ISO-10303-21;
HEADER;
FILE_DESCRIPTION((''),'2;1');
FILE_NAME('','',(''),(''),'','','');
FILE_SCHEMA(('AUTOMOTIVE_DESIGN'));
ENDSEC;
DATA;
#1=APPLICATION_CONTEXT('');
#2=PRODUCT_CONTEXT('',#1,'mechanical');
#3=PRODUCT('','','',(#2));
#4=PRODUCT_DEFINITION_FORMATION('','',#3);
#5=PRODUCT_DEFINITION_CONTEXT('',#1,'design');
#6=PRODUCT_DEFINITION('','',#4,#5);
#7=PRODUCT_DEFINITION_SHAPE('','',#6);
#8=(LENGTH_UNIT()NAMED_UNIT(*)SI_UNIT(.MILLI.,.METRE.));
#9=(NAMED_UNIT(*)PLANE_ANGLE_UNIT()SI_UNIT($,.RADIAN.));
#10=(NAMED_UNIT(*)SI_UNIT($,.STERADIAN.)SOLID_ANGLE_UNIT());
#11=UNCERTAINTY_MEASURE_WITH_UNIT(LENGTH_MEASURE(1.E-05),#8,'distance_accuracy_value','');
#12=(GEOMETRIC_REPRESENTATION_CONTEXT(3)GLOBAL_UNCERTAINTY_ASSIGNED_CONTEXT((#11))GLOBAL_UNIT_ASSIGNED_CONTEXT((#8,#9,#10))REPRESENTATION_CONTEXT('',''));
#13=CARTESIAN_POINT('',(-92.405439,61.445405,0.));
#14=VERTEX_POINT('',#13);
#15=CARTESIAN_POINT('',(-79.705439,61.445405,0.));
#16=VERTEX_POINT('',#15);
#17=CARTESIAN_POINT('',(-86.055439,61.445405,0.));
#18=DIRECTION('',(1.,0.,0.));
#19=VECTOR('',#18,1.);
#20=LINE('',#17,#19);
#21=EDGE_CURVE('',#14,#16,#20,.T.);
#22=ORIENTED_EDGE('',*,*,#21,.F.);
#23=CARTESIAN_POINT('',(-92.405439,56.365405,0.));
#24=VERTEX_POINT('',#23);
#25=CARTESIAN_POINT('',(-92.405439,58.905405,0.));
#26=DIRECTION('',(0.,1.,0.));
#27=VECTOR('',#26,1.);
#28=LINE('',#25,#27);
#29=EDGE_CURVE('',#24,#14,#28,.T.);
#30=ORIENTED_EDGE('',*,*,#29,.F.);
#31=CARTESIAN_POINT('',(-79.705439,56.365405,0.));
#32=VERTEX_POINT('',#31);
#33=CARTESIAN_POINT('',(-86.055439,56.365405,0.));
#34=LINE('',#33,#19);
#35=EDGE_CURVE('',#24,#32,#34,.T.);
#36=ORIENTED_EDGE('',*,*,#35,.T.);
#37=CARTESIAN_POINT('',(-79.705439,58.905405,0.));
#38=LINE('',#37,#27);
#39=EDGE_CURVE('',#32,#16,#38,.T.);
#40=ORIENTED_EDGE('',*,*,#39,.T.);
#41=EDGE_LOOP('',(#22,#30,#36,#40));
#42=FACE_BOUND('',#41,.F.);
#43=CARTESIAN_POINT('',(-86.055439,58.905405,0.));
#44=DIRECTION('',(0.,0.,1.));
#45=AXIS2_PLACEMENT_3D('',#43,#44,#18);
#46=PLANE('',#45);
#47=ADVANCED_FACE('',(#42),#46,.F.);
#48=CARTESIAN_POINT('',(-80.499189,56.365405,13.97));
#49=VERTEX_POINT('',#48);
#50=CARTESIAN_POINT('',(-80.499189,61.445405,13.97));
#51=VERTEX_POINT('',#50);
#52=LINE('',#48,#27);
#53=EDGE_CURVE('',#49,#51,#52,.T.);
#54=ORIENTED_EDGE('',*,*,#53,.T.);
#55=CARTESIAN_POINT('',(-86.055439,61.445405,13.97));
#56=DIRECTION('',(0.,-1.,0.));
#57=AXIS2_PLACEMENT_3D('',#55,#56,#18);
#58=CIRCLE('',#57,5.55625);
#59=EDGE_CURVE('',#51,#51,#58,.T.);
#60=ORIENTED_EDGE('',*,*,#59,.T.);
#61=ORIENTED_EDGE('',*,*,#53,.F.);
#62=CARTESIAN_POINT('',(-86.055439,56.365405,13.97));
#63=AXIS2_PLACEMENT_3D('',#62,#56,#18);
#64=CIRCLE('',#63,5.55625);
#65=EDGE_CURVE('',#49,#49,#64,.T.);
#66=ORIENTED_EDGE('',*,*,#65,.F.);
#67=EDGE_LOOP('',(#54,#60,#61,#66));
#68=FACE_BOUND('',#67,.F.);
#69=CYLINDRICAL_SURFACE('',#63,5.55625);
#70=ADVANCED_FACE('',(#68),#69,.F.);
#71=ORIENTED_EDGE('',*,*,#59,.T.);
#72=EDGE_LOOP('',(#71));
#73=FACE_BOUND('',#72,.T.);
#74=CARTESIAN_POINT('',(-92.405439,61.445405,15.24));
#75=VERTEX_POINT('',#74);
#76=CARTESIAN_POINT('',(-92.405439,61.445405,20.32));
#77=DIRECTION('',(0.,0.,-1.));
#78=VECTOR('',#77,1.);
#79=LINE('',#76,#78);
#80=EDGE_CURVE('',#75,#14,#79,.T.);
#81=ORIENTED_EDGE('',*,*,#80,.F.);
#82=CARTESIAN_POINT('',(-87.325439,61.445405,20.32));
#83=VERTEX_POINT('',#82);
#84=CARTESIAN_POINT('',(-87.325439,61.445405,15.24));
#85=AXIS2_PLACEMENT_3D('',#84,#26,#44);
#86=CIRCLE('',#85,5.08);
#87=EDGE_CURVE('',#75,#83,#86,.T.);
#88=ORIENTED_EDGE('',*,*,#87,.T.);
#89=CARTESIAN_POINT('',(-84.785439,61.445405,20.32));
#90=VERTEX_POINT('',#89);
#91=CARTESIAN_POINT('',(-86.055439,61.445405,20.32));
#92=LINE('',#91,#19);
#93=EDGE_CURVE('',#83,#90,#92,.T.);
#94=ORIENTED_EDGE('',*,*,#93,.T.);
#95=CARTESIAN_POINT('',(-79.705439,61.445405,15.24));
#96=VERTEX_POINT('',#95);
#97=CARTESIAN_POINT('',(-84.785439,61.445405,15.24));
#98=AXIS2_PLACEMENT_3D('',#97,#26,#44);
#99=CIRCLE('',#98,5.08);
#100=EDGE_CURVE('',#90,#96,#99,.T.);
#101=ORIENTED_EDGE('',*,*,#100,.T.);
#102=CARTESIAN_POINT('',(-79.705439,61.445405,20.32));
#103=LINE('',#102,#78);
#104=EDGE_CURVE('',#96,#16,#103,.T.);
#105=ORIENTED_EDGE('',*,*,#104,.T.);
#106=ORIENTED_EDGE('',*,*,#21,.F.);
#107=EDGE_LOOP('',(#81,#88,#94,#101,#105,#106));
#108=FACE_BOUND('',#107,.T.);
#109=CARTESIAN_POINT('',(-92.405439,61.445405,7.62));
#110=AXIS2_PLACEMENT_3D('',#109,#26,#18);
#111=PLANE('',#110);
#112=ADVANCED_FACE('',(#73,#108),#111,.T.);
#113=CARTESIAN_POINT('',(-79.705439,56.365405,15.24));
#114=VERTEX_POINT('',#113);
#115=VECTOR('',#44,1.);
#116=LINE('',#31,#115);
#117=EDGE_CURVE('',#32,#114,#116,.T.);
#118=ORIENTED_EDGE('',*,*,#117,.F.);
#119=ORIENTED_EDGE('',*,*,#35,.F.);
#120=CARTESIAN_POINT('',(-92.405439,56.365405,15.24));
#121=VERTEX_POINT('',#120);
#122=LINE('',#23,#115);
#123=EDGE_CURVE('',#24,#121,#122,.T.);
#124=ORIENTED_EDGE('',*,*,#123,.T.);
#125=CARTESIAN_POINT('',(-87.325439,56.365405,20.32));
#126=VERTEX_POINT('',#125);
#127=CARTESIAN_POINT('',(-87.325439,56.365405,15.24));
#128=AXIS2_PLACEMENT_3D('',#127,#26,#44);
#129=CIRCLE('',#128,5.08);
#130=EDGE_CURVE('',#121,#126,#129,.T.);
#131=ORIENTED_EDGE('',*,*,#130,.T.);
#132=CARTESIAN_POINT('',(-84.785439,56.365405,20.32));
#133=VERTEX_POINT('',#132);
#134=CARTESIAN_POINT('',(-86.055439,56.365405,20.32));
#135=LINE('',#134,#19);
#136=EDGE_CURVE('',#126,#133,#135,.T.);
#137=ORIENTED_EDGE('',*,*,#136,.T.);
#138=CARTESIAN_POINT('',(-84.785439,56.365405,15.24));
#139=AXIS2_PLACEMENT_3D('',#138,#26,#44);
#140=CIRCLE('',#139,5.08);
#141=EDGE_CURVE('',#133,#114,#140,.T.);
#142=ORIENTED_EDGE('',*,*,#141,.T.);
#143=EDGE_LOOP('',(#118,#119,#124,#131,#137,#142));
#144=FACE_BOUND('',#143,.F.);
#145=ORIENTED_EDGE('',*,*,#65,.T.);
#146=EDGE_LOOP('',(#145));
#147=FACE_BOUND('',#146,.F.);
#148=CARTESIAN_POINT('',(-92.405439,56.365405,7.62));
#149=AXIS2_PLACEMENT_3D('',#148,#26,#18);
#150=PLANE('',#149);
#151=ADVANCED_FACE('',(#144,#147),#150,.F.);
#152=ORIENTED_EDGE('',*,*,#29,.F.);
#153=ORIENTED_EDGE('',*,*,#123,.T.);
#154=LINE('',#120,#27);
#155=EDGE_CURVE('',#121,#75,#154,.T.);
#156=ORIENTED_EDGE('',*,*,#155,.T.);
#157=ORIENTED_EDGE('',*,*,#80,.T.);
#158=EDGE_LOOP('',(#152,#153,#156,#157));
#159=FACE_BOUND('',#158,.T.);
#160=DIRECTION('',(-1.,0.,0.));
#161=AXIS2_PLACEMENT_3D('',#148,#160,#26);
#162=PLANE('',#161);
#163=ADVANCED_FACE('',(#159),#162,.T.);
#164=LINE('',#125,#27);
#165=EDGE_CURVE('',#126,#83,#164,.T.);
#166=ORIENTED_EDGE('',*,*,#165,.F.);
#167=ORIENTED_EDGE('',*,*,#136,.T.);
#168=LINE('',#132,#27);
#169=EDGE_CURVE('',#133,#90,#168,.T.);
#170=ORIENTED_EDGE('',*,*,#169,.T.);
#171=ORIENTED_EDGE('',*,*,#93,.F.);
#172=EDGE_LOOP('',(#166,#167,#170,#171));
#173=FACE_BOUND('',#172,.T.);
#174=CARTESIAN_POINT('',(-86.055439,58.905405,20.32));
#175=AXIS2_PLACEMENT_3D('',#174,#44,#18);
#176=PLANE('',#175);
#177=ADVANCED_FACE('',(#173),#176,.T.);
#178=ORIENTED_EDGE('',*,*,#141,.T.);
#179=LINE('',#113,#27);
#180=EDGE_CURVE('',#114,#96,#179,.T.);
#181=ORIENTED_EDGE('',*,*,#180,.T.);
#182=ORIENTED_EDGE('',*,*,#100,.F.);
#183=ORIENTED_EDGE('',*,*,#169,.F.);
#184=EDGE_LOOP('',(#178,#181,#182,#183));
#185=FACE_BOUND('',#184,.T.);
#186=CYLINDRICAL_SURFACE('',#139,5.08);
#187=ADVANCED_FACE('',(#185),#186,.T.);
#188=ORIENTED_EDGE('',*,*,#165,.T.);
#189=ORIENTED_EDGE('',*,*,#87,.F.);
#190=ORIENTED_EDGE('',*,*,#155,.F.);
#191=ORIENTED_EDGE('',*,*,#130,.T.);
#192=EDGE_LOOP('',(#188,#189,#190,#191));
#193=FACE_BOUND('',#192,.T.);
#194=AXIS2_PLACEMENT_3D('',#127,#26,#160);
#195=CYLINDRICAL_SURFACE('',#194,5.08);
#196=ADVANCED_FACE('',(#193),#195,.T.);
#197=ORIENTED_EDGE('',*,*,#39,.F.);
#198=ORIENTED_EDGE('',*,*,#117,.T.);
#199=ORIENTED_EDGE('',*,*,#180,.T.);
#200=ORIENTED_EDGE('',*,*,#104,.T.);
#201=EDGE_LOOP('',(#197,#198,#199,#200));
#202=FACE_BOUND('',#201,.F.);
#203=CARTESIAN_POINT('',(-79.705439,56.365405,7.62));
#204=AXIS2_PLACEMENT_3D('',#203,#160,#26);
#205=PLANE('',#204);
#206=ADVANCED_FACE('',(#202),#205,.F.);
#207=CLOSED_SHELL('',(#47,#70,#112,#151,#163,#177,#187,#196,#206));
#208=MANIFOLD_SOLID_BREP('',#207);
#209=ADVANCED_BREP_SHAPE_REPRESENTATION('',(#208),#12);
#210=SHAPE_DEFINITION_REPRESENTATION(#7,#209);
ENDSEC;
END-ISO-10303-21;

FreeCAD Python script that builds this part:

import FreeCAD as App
import Part
import Sketcher

V = App.Vector
Q = App.Units.Quantity


def edges_at(feature, points):
    """Names of the edges that pass closest to the given points."""
    edges = feature.Shape.Edges
    near = lambda p: min(range(len(edges)), key=lambda i: edges[i].distToShape(Part.Vertex(*p))[0])
    return sorted({f"Edge{near(p) + 1}" for p in points})

doc = App.newDocument("Part")
params = doc.addObject("Spreadsheet::Sheet", "Params")
for row, (alias, value) in enumerate([
    ("sketch1_width", "0.5 in"),
    ("sketch1_height", "0.2 in"),
    ("pad1_length", "0.3 in"),
    ("sketch2_width", "0.5 in"),
    ("sketch2_height", "0.2 in"),
    ("pad2_length", "0.5 in"),
    ("sketch3_diameter", "0.4375 in"),
    ("pocket1_length", "1 in"),
    ("fillet_radius", "0.2 in"),
], start=1):
    params.set(f"A{row}", alias)
    params.set(f"B{row}", "=" + value)
    params.setAlias(f"B{row}", alias)

body = doc.addObject("PartDesign::Body", "Body")

# Sketch on XY plane
sketch1 = body.newObject("Sketcher::SketchObject", "Sketch")
sketch1.AttachmentSupport = (doc.getObject("XY_Plane"), [""])
sketch1.MapMode = "FlatFace"
sketch1.addGeometry([
    Part.LineSegment(V(-92, 61, 0), V(-92, 56, 0)),
    Part.LineSegment(V(-92, 56, 0), V(-80, 56, 0)),
    Part.LineSegment(V(-80, 56, 0), V(-80, 61, 0)),
    Part.LineSegment(V(-80, 61, 0), V(-92, 61, 0)),
], False)
sketch1.addConstraint([
    Sketcher.Constraint("Coincident", 0, 2, 1, 1),
    Sketcher.Constraint("Coincident", 1, 2, 2, 1),
    Sketcher.Constraint("Coincident", 2, 2, 3, 1),
    Sketcher.Constraint("Coincident", 3, 2, 0, 1),
    Sketcher.Constraint("Vertical", 0),
    Sketcher.Constraint("Horizontal", 1),
    Sketcher.Constraint("Vertical", 2),
    Sketcher.Constraint("Horizontal", 3),
    Sketcher.Constraint("DistanceX", 1, 1, 1, 2, Q("0.5 in")),
    Sketcher.Constraint("DistanceY", 0, 2, 0, 1, Q("0.2 in")),
    Sketcher.Constraint("DistanceX", 0, 2, -1, 1, Q("92.405439 mm")),
    Sketcher.Constraint("DistanceY", -1, 1, 0, 2, Q("56.365405 mm")),
])
sketch1.setExpression("Constraints[8]", "Params.sketch1_width")
sketch1.setExpression("Constraints[9]", "Params.sketch1_height")
pad1 = body.newObject("PartDesign::Pad", "Pad")
pad1.Profile = sketch1
pad1.setExpression("Length", "Params.pad1_length")

# Sketch on XY plane
sketch2 = body.newObject("Sketcher::SketchObject", "Sketch001")
sketch2.AttachmentSupport = (doc.getObject("XY_Plane"), [""])
sketch2.MapMode = "FlatFace"
sketch2.AttachmentOffset = App.Placement(V(0, 0, 0.3 * 25.4), App.Rotation())
sketch2.addGeometry([
    Part.LineSegment(V(-92, 61, 0), V(-92, 56, 0)),
    Part.LineSegment(V(-92, 56, 0), V(-80, 56, 0)),
    Part.LineSegment(V(-80, 56, 0), V(-80, 61, 0)),
    Part.LineSegment(V(-80, 61, 0), V(-92, 61, 0)),
], False)
sketch2.addConstraint([
    Sketcher.Constraint("Coincident", 0, 2, 1, 1),
    Sketcher.Constraint("Coincident", 1, 2, 2, 1),
    Sketcher.Constraint("Coincident", 2, 2, 3, 1),
    Sketcher.Constraint("Coincident", 3, 2, 0, 1),
    Sketcher.Constraint("Vertical", 0),
    Sketcher.Constraint("Horizontal", 1),
    Sketcher.Constraint("Vertical", 2),
    Sketcher.Constraint("Horizontal", 3),
    Sketcher.Constraint("DistanceX", 1, 1, 1, 2, Q("0.5 in")),
    Sketcher.Constraint("DistanceY", 0, 2, 0, 1, Q("0.2 in")),
    Sketcher.Constraint("DistanceX", 0, 2, -1, 1, Q("92.405439 mm")),
    Sketcher.Constraint("DistanceY", -1, 1, 0, 2, Q("56.365405 mm")),
])
sketch2.setExpression("Constraints[8]", "Params.sketch2_width")
sketch2.setExpression("Constraints[9]", "Params.sketch2_height")
pad2 = body.newObject("PartDesign::Pad", "Pad001")
pad2.Profile = sketch2
pad2.setExpression("Length", "Params.pad2_length")

# Sketch on XZ plane
sketch3 = body.newObject("Sketcher::SketchObject", "Sketch002")
sketch3.AttachmentSupport = (doc.getObject("XZ_Plane"), [""])
sketch3.MapMode = "FlatFace"
sketch3.AttachmentOffset = App.Placement(V(0, 0, -56.365405), App.Rotation())
sketch3.addGeometry(Part.Circle(V(-86, 14, 0), V(0, 0, 1), 6), False)
sketch3.addConstraint([
    Sketcher.Constraint("Diameter", 0, Q("0.4375 in")),
    Sketcher.Constraint("DistanceY", -1, 1, 0, 3, Q("0.55 in")),
    Sketcher.Constraint("DistanceX", 0, 3, -1, 1, Q("86.055439 mm")),
])
sketch3.setExpression("Constraints[0]", "Params.sketch3_diameter")
pocket1 = body.newObject("PartDesign::Pocket", "Pocket")
pocket1.Profile = sketch3
pocket1.setExpression("Length", "Params.pocket1_length")
doc.recompute()

fillet = body.newObject("PartDesign::Fillet", "Fillet")
fillet.Base = (pocket1, edges_at(pocket1, [(-92.405, 58.905, 20.32), (-79.705, 58.905, 20.32)]))
fillet.setExpression("Radius", "Params.fillet_radius")

doc.recompute()
